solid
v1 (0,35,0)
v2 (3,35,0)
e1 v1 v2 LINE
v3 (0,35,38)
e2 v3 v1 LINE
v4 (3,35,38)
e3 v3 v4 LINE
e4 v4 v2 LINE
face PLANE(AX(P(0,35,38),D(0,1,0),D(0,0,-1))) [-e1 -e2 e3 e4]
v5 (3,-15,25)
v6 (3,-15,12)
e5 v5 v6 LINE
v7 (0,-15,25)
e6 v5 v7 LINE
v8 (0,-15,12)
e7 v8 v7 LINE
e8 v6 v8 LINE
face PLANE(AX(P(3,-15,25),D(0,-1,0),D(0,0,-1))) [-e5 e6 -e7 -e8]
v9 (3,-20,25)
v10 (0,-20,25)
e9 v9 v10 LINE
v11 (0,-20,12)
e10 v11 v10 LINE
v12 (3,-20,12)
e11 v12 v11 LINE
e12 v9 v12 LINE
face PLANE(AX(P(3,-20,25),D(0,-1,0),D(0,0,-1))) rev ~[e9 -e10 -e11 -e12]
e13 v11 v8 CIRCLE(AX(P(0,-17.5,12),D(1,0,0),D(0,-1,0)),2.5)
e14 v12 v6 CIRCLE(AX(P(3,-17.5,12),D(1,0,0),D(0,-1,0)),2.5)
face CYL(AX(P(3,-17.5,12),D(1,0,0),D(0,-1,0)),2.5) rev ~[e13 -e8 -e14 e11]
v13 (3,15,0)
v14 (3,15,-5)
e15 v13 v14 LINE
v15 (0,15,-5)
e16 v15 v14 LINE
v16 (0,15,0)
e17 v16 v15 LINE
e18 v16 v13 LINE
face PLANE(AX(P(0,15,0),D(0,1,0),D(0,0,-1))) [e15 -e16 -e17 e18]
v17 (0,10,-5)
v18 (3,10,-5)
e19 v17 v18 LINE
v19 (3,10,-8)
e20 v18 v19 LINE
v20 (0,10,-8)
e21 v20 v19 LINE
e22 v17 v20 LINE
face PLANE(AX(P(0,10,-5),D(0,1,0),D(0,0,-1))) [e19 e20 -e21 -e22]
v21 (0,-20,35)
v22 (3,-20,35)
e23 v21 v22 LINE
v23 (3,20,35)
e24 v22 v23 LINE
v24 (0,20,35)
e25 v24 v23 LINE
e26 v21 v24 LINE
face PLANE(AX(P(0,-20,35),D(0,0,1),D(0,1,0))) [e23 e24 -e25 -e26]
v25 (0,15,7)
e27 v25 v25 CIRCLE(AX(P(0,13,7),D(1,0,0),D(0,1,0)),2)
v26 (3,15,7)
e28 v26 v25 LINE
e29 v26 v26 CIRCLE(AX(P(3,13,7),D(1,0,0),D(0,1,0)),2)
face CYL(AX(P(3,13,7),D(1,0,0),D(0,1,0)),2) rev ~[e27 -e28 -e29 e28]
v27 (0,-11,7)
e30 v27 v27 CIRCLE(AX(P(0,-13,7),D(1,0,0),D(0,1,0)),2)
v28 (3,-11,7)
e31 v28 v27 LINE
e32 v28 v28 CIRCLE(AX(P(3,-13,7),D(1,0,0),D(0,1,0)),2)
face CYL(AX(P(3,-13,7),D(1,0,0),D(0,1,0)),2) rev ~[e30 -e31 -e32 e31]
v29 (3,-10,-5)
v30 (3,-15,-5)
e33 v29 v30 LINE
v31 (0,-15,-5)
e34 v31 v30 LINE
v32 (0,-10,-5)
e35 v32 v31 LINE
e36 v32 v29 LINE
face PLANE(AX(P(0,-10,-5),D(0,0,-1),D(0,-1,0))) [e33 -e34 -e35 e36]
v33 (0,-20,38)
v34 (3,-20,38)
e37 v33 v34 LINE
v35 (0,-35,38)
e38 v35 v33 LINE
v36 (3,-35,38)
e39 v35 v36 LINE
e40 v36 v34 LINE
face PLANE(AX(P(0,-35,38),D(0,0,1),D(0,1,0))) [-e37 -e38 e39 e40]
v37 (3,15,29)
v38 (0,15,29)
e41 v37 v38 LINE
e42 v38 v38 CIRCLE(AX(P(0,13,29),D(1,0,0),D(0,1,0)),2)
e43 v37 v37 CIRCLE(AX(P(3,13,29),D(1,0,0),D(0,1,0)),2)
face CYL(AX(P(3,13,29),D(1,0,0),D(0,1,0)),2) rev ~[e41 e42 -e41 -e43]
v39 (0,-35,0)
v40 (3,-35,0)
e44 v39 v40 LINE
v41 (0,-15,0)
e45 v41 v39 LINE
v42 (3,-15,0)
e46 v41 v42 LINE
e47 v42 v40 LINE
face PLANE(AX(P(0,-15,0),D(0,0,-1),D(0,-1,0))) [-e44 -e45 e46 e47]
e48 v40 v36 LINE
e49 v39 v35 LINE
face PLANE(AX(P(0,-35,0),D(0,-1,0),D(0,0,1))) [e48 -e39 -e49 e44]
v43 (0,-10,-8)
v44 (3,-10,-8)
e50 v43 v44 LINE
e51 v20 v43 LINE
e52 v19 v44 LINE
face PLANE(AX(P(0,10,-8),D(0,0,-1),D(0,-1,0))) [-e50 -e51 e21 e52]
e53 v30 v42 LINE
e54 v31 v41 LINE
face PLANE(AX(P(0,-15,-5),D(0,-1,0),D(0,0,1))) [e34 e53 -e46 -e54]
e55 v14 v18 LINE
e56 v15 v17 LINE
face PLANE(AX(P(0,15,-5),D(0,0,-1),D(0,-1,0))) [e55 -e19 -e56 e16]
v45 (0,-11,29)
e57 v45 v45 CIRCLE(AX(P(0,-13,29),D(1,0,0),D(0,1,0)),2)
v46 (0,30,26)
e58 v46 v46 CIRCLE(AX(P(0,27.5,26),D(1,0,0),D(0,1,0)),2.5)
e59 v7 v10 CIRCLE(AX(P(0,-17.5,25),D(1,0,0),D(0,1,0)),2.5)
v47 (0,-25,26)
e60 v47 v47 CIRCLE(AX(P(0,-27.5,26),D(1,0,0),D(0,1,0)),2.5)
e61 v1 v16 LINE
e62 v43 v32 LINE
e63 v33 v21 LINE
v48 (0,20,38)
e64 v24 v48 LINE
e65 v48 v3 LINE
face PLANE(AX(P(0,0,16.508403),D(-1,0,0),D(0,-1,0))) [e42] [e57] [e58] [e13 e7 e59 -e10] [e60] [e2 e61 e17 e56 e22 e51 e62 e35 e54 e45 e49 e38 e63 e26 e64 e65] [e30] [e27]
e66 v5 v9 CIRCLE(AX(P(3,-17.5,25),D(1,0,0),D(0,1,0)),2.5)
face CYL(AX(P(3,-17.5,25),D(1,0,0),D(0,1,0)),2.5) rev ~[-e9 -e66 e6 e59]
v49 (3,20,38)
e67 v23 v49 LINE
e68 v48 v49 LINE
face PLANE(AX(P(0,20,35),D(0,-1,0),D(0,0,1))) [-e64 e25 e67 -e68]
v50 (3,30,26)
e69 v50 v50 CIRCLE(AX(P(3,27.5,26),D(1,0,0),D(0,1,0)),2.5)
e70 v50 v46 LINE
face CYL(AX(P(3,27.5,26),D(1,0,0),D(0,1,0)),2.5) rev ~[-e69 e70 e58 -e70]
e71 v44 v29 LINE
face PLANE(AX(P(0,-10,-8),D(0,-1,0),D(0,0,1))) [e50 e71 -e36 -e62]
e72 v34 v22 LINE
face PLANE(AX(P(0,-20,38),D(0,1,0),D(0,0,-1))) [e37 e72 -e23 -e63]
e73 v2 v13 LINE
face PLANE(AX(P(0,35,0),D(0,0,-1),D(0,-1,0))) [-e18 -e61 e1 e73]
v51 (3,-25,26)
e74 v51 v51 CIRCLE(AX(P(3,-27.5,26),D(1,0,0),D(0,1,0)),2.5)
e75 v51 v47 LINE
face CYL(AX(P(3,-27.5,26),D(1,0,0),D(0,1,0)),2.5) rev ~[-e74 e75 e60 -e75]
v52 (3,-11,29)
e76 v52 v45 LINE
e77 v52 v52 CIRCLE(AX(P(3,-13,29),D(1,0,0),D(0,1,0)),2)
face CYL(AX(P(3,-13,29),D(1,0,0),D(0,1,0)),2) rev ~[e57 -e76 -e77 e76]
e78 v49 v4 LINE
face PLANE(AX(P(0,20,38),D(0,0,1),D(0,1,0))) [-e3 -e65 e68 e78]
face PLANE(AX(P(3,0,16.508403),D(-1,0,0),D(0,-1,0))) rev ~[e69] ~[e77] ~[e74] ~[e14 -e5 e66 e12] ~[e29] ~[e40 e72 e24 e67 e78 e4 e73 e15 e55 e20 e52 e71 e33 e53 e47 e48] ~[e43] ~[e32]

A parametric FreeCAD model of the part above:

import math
import FreeCAD as App
import Part
import Sketcher

V = App.Vector
Q = App.Units.Quantity


def add_polygon(sketch, points):
    """Adds a closed chain of lines whose ends are joined by coincident constraints."""
    first, n = sketch.GeometryCount, len(points)
    for a, b in zip(points, points[1:] + points[:1]):
        sketch.addGeometry(Part.LineSegment(App.Vector(*a, 0), App.Vector(*b, 0)), False)
    for i in range(n):
        sketch.addConstraint(Sketcher.Constraint("Coincident", first + i, 2, first + (i + 1) % n, 1))

doc = App.newDocument("Part")
body = doc.addObject("PartDesign::Body", "Body")

# Sketch on YZ plane
sketch1 = body.newObject("Sketcher::SketchObject", "Sketch")
sketch1.AttachmentSupport = (doc.getObject("YZ_Plane"), [""])
sketch1.MapMode = "FlatFace"
add_polygon(sketch1, [(-20, 38), (-35, 38), (-35, 0), (-15, 0), (-15, -5), (-10, -5), (-10, -8), (10, -8), (10, -5), (15, -5), (15, 0), (35, 0), (35, 38), (20, 38), (20, 35), (-20, 35)])  # lines 0-15
sketch1.addConstraint(Sketcher.Constraint("Horizontal", 0))
sketch1.addConstraint(Sketcher.Constraint("Vertical", 1))
sketch1.addConstraint(Sketcher.Constraint("Horizontal", 2))
sketch1.addConstraint(Sketcher.Constraint("Vertical", 3))
sketch1.addConstraint(Sketcher.Constraint("Horizontal", 4))
sketch1.addConstraint(Sketcher.Constraint("Vertical", 5))
sketch1.addConstraint(Sketcher.Constraint("Horizontal", 6))
sketch1.addConstraint(Sketcher.Constraint("Vertical", 7))
sketch1.addConstraint(Sketcher.Constraint("Horizontal", 8))
sketch1.addConstraint(Sketcher.Constraint("Vertical", 9))
sketch1.addConstraint(Sketcher.Constraint("Horizontal", 10))
sketch1.addConstraint(Sketcher.Constraint("Vertical", 11))
sketch1.addConstraint(Sketcher.Constraint("Horizontal", 12))
sketch1.addConstraint(Sketcher.Constraint("Vertical", 13))
sketch1.addConstraint(Sketcher.Constraint("Horizontal", 14))
sketch1.addConstraint(Sketcher.Constraint("Vertical", 15))
sketch1.addConstraint(Sketcher.Constraint("Symmetric", 2, 2, 9, 2, -1, 1))
sketch1.addConstraint(Sketcher.Constraint("Symmetric", 4, 2, 7, 2, -2))
sketch1.addConstraint(Sketcher.Constraint("Symmetric", 1, 2, 10, 2, -2))
sketch1.addConstraint(Sketcher.Constraint("Symmetric", 12, 2, 15, 2, -2))
sketch1.addConstraint(Sketcher.Constraint("Equal", 2, 6))
sketch1.addConstraint(Sketcher.Constraint("Equal", 8, 3))
sketch1.addConstraint(Sketcher.Constraint("Equal", 7, 13))
sketch1.addConstraint(Sketcher.Constraint("DistanceX", 0, 2, 0, 1, Q("15 mm")))
sketch1.addConstraint(Sketcher.Constraint("DistanceX", 2, 1, 2, 2, Q("20 mm")))
sketch1.addConstraint(Sketcher.Constraint("DistanceX", 4, 1, 4, 2, Q("5 mm")))
sketch1.addConstraint(Sketcher.Constraint("DistanceY", 1, 2, 1, 1, Q("38 mm")))
sketch1.addConstraint(Sketcher.Constraint("DistanceY", 5, 2, 5, 1, Q("3 mm")))
pad1 = body.newObject("PartDesign::Pad", "Pad")
pad1.Profile = sketch1
pad1.Length = 3

# Sketch on YZ plane
sketch2 = body.newObject("Sketcher::SketchObject", "Sketch001")
sketch2.AttachmentSupport = (doc.getObject("YZ_Plane"), [""])
sketch2.MapMode = "FlatFace"
sketch2.AttachmentOffset = App.Placement(V(0, 0, 3), App.Rotation())
sketch2.addGeometry(Part.Circle(V(-13, 29, 0), V(0, 0, 1), 2), False)
sketch2.addGeometry(Part.Circle(V(13, 29, 0), V(0, 0, 1), 2), False)
sketch2.addGeometry(Part.Circle(V(-13, 7, 0), V(0, 0, 1), 2), False)
sketch2.addGeometry(Part.Circle(V(13, 7, 0), V(0, 0, 1), 2), False)
sketch2.addGeometry(Part.LineSegment(V(-20, 25, 0), V(-20, 12, 0)), False)
sketch2.addGeometry(Part.ArcOfCircle(Part.Circle(V(-17.5, 12, 0), V(0, 0, 1), 2.5), math.radians(180), math.radians(360)), False)
sketch2.addGeometry(Part.LineSegment(V(-15, 12, 0), V(-15, 25, 0)), False)
sketch2.addGeometry(Part.ArcOfCircle(Part.Circle(V(-17.5, 25, 0), V(0, 0, 1), 2.5), math.radians(0), math.radians(180)), False)
sketch2.addConstraint(Sketcher.Constraint("Tangent", 4, 2, 5, 1))
sketch2.addConstraint(Sketcher.Constraint("Tangent", 5, 2, 6, 1))
sketch2.addConstraint(Sketcher.Constraint("Tangent", 6, 2, 7, 1))
sketch2.addConstraint(Sketcher.Constraint("Tangent", 7, 2, 4, 1))
sketch2.addConstraint(Sketcher.Constraint("Vertical", 4))
sketch2.addConstraint(Sketcher.Constraint("Vertical", 6))
sketch2.addConstraint(Sketcher.Constraint("Equal", 0, 1))
sketch2.addConstraint(Sketcher.Constraint("Equal", 1, 2))
sketch2.addConstraint(Sketcher.Constraint("Equal", 2, 3))
sketch2.addConstraint(Sketcher.Constraint("Symmetric", 0, 3, 1, 3, -2))
sketch2.addConstraint(Sketcher.Constraint("Symmetric", 2, 3, 3, 3, -2))
sketch2.addConstraint(Sketcher.Constraint("Vertical", 0, 3, 2, 3))
sketch2.addConstraint(Sketcher.Constraint("Diameter", 0, Q("4 mm")))
sketch2.addConstraint(Sketcher.Constraint("Radius", 5, Q("2.5 mm")))
sketch2.addConstraint(Sketcher.Constraint("DistanceY", 4, 2, 4, 1, Q("13 mm")))
sketch2.addConstraint(Sketcher.Constraint("DistanceX", 0, 3, -1, 1, Q("13 mm")))
sketch2.addConstraint(Sketcher.Constraint("DistanceY", -1, 1, 0, 3, Q("29 mm")))
sketch2.addConstraint(Sketcher.Constraint("DistanceY", -1, 1, 2, 3, Q("7 mm")))
sketch2.addConstraint(Sketcher.Constraint("DistanceY", -1, 1, 5, 3, Q("12 mm")))
sketch2.addConstraint(Sketcher.Constraint("DistanceX", 4, 2, -1, 1, Q("20 mm")))
pocket1 = body.newObject("PartDesign::Pocket", "Pocket")
pocket1.Profile = sketch2
pocket1.Type = "ThroughAll"

# Sketch on YZ plane
sketch3 = body.newObject("Sketcher::SketchObject", "Sketch002")
sketch3.AttachmentSupport = (doc.getObject("YZ_Plane"), [""])
sketch3.MapMode = "FlatFace"
sketch3.AttachmentOffset = App.Placement(V(0, 0, 3), App.Rotation())
sketch3.addGeometry(Part.Circle(V(-27.5, 26, 0), V(0, 0, 1), 2.5), False)
sketch3.addGeometry(Part.Circle(V(27.5, 26, 0), V(0, 0, 1), 2.5), False)
sketch3.addConstraint(Sketcher.Constraint("Equal", 0, 1))
sketch3.addConstraint(Sketcher.Constraint("Symmetric", 0, 3, 1, 3, -2))
sketch3.addConstraint(Sketcher.Constraint("Diameter", 0, Q("5 mm")))
sketch3.addConstraint(Sketcher.Constraint("DistanceY", -1, 1, 0, 3, Q("26 mm")))
sketch3.addConstraint(Sketcher.Constraint("DistanceX", 0, 3, 1, 3, Q("55 mm")))
pocket2 = body.newObject("PartDesign::Pocket", "Pocket001")
pocket2.Profile = sketch3
pocket2.Type = "ThroughAll"

doc.recompute()
